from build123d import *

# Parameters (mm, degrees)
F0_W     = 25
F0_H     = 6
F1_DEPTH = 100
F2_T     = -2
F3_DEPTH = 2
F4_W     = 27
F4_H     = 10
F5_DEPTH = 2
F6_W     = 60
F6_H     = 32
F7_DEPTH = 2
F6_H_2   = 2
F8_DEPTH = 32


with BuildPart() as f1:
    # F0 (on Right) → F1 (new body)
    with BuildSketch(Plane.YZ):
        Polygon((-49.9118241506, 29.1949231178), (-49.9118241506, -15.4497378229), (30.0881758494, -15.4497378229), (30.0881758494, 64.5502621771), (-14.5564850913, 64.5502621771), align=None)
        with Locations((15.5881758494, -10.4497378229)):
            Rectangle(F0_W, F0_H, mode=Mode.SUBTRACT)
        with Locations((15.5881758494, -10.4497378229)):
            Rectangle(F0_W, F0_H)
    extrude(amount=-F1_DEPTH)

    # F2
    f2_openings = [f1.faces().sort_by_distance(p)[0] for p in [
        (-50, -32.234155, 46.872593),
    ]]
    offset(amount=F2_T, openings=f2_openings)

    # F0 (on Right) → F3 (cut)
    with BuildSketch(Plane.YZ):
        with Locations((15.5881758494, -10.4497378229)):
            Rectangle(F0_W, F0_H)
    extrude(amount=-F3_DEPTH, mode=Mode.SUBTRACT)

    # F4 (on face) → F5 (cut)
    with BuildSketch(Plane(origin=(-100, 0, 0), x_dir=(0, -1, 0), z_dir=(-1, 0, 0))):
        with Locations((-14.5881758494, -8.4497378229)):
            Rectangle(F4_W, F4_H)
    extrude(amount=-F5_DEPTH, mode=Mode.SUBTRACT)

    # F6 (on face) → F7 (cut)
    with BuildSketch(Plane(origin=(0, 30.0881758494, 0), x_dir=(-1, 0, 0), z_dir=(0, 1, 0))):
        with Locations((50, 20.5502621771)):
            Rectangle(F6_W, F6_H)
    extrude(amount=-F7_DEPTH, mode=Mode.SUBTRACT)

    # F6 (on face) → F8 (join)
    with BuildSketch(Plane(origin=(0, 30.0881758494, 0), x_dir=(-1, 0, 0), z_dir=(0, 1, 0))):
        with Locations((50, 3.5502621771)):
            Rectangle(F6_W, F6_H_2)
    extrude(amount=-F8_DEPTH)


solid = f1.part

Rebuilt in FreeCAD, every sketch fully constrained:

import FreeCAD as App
import Part
import Sketcher
Q = App.Units.Quantity


def faces_at(feature, points):
    """Names of the faces that lie closest to the given points."""
    faces = feature.Shape.Faces
    near = lambda p: min(range(len(faces)), key=lambda i: faces[i].distToShape(Part.Vertex(*p))[0])
    return sorted({f"Face{near(p) + 1}" for p in points})

doc = App.newDocument("Part")
body = doc.addObject("PartDesign::Body", "Body")

# Sketch on YZ plane
sketch1 = body.newObject("Sketcher::SketchObject", "Sketch")
sketch1.AttachmentSupport = (doc.getObject("YZ_Plane"), [""])
sketch1.MapMode = "FlatFace"
sketch1.addGeometry([
    Part.LineSegment(App.Vector(-50, 29, 0), App.Vector(-50, -15, 0)),  # 0
    Part.LineSegment(App.Vector(-50, -15, 0), App.Vector(30, -15, 0)),  # 1
    Part.LineSegment(App.Vector(30, -15, 0), App.Vector(30, 65, 0)),  # 2
    Part.LineSegment(App.Vector(30, 65, 0), App.Vector(-15, 65, 0)),  # 3
    Part.LineSegment(App.Vector(-15, 65, 0), App.Vector(-50, 29, 0)),  # 4
], False)
sketch1.addConstraint([
    Sketcher.Constraint("Coincident", 0, 2, 1, 1),
    Sketcher.Constraint("Coincident", 1, 2, 2, 1),
    Sketcher.Constraint("Coincident", 2, 2, 3, 1),
    Sketcher.Constraint("Coincident", 3, 2, 4, 1),
    Sketcher.Constraint("Coincident", 4, 2, 0, 1),
    Sketcher.Constraint("Vertical", 0),
    Sketcher.Constraint("Horizontal", 1),
    Sketcher.Constraint("Vertical", 2),
    Sketcher.Constraint("Horizontal", 3),
    Sketcher.Constraint("Equal", 3, 0),
    Sketcher.Constraint("Equal", 1, 2),
    Sketcher.Constraint("DistanceX", 1, 1, 1, 2, Q("80 mm")),
    Sketcher.Constraint("Distance", 4, Q("50 mm")),
    Sketcher.Constraint("DistanceX", 0, 2, -1, 1, Q("49.911824 mm")),
    Sketcher.Constraint("DistanceY", 0, 2, -1, 1, Q("15.449738 mm")),
])
pad1 = body.newObject("PartDesign::Pad", "Pad")
pad1.Profile = sketch1
pad1.Length = 100
pad1.Reversed = True
doc.recompute()

thickness = body.newObject("PartDesign::Thickness", "Thickness")
thickness.Base = (pad1, faces_at(pad1, [(-50, -32.234, 46.873)]))
thickness.Value = 2
thickness.Reversed = True
thickness.Join = "Arc"

# Sketch on YZ plane
sketch2 = body.newObject("Sketcher::SketchObject", "Sketch001")
sketch2.AttachmentSupport = (doc.getObject("YZ_Plane"), [""])
sketch2.MapMode = "FlatFace"
sketch2.addGeometry([
    Part.LineSegment(App.Vector(3, -7, 0), App.Vector(3, -13, 0)),
    Part.LineSegment(App.Vector(3, -13, 0), App.Vector(28, -13, 0)),
    Part.LineSegment(App.Vector(28, -13, 0), App.Vector(28, -7, 0)),
    Part.LineSegment(App.Vector(28, -7, 0), App.Vector(3, -7, 0)),
], False)
sketch2.addConstraint([
    Sketcher.Constraint("Coincident", 0, 2, 1, 1),
    Sketcher.Constraint("Coincident", 1, 2, 2, 1),
    Sketcher.Constraint("Coincident", 2, 2, 3, 1),
    Sketcher.Constraint("Coincident", 3, 2, 0, 1),
    Sketcher.Constraint("Vertical", 0),
    Sketcher.Constraint("Horizontal", 1),
    Sketcher.Constraint("Vertical", 2),
    Sketcher.Constraint("Horizontal", 3),
    Sketcher.Constraint("DistanceX", 1, 1, 1, 2, Q("25 mm")),
    Sketcher.Constraint("DistanceY", 0, 2, 0, 1, Q("6 mm")),
    Sketcher.Constraint("DistanceX", -1, 1, 0, 2, Q("3.088176 mm")),
    Sketcher.Constraint("DistanceY", 0, 2, -1, 1, Q("13.449738 mm")),
])
pocket1 = body.newObject("PartDesign::Pocket", "Pocket")
pocket1.Profile = sketch2
pocket1.Length = 2

# Sketch on YZ plane
sketch3 = body.newObject("Sketcher::SketchObject", "Sketch002")
sketch3.AttachmentSupport = (doc.getObject("YZ_Plane"), [""])
sketch3.MapMode = "FlatFace"
sketch3.AttachmentOffset = App.Placement(App.Vector(0, 0, -100), App.Rotation())
sketch3.addGeometry([
    Part.LineSegment(App.Vector(28, -3, 0), App.Vector(28, -13, 0)),
    Part.LineSegment(App.Vector(28, -13, 0), App.Vector(1, -13, 0)),
    Part.LineSegment(App.Vector(1, -13, 0), App.Vector(1, -3, 0)),
    Part.LineSegment(App.Vector(1, -3, 0), App.Vector(28, -3, 0)),
], False)
sketch3.addConstraint([
    Sketcher.Constraint("Coincident", 0, 2, 1, 1),
    Sketcher.Constraint("Coincident", 1, 2, 2, 1),
    Sketcher.Constraint("Coincident", 2, 2, 3, 1),
    Sketcher.Constraint("Coincident", 3, 2, 0, 1),
    Sketcher.Constraint("Vertical", 0),
    Sketcher.Constraint("Horizontal", 1),
    Sketcher.Constraint("Vertical", 2),
    Sketcher.Constraint("Horizontal", 3),
    Sketcher.Constraint("DistanceX", 1, 2, 1, 1, Q("27 mm")),
    Sketcher.Constraint("DistanceY", 0, 2, 0, 1, Q("10 mm")),
    Sketcher.Constraint("DistanceX", -1, 1, 0, 2, Q("28.088176 mm")),
    Sketcher.Constraint("DistanceY", 0, 2, -1, 1, Q("13.449738 mm")),
])
pocket2 = body.newObject("PartDesign::Pocket", "Pocket001")
pocket2.Profile = sketch3
pocket2.Length = 2
pocket2.Reversed = True

# Sketch on XZ plane
sketch4 = body.newObject("Sketcher::SketchObject", "Sketch003")
sketch4.AttachmentSupport = (doc.getObject("XZ_Plane"), [""])
sketch4.MapMode = "FlatFace"
sketch4.AttachmentOffset = App.Placement(App.Vector(0, 0, -30.088176), App.Rotation())
sketch4.addGeometry([
    Part.LineSegment(App.Vector(-20, 37, 0), App.Vector(-20, 5, 0)),
    Part.LineSegment(App.Vector(-20, 5, 0), App.Vector(-80, 5, 0)),
    Part.LineSegment(App.Vector(-80, 5, 0), App.Vector(-80, 37, 0)),
    Part.LineSegment(App.Vector(-80, 37, 0), App.Vector(-20, 37, 0)),
], False)
sketch4.addConstraint([
    Sketcher.Constraint("Coincident", 0, 2, 1, 1),
    Sketcher.Constraint("Coincident", 1, 2, 2, 1),
    Sketcher.Constraint("Coincident", 2, 2, 3, 1),
    Sketcher.Constraint("Coincident", 3, 2, 0, 1),
    Sketcher.Constraint("Vertical", 0),
    Sketcher.Constraint("Horizontal", 1),
    Sketcher.Constraint("Vertical", 2),
    Sketcher.Constraint("Horizontal", 3),
    Sketcher.Constraint("DistanceX", 1, 2, 1, 1, Q("60 mm")),
    Sketcher.Constraint("DistanceY", 0, 2, 0, 1, Q("32 mm")),
    Sketcher.Constraint("DistanceX", 0, 2, -1, 1, Q("20 mm")),
    Sketcher.Constraint("DistanceY", -1, 1, 0, 2, Q("4.550262 mm")),
])
pocket3 = body.newObject("PartDesign::Pocket", "Pocket002")
pocket3.Profile = sketch4
pocket3.Length = 2
pocket3.Reversed = True

# Sketch on XZ plane
sketch5 = body.newObject("Sketcher::SketchObject", "Sketch004")
sketch5.AttachmentSupport = (doc.getObject("XZ_Plane"), [""])
sketch5.MapMode = "FlatFace"
sketch5.AttachmentOffset = App.Placement(App.Vector(0, 0, -30.088176), App.Rotation())
sketch5.addGeometry([
    Part.LineSegment(App.Vector(-20, 4.6, 0), App.Vector(-20, 2.6, 0)),
    Part.LineSegment(App.Vector(-20, 2.6, 0), App.Vector(-80, 2.6, 0)),
    Part.LineSegment(App.Vector(-80, 2.6, 0), App.Vector(-80, 4.6, 0)),
    Part.LineSegment(App.Vector(-80, 4.6, 0), App.Vector(-20, 4.6, 0)),
], False)
sketch5.addConstraint([
    Sketcher.Constraint("Coincident", 0, 2, 1, 1),
    Sketcher.Constraint("Coincident", 1, 2, 2, 1),
    Sketcher.Constraint("Coincident", 2, 2, 3, 1),
    Sketcher.Constraint("Coincident", 3, 2, 0, 1),
    Sketcher.Constraint("Vertical", 0),
    Sketcher.Constraint("Horizontal", 1),
    Sketcher.Constraint("Vertical", 2),
    Sketcher.Constraint("Horizontal", 3),
    Sketcher.Constraint("DistanceX", 1, 2, 1, 1, Q("60 mm")),
    Sketcher.Constraint("DistanceY", 0, 2, 0, 1, Q("2 mm")),
    Sketcher.Constraint("DistanceX", 0, 2, -1, 1, Q("20 mm")),
    Sketcher.Constraint("DistanceY", -1, 1, 0, 2, Q("2.550262 mm")),
])
pad2 = body.newObject("PartDesign::Pad", "Pad001")
pad2.Profile = sketch5
pad2.Length = 32

doc.recompute()
